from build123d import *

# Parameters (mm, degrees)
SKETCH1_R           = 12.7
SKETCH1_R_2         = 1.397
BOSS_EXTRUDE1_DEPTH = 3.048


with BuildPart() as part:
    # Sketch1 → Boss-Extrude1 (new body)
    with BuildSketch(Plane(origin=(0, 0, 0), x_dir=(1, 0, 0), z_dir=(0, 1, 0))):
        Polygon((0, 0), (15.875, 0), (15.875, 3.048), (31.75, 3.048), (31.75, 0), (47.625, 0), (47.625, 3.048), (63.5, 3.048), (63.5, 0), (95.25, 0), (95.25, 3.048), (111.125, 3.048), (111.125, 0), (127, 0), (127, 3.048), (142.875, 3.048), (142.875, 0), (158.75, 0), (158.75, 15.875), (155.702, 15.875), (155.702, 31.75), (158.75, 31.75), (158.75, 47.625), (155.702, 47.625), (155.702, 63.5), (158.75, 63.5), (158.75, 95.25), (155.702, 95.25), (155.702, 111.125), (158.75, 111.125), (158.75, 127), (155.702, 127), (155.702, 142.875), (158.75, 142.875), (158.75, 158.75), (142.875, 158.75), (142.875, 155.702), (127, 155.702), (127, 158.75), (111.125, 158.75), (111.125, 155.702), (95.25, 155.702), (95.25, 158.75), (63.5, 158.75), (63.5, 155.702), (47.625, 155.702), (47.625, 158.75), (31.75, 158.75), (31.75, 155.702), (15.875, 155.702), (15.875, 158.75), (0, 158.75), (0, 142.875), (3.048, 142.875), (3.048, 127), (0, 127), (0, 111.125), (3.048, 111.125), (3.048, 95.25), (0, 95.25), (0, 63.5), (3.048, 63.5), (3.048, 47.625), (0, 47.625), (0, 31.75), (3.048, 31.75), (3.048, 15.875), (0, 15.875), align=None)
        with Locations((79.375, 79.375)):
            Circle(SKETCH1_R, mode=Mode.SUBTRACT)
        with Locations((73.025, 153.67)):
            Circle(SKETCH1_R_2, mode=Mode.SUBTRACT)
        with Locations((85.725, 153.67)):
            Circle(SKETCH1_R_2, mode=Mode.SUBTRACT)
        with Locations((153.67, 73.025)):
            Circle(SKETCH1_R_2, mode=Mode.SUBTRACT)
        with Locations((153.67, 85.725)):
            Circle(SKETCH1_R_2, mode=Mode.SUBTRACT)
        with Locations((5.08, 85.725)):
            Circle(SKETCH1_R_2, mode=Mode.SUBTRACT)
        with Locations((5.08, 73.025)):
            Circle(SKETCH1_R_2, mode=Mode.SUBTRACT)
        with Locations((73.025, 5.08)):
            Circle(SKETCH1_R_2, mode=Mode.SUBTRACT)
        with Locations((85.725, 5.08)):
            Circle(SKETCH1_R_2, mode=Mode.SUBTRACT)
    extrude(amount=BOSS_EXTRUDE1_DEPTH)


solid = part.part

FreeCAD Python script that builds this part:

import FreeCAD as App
import Part
import Sketcher
from FreeCAD import Vector
Q = App.Units.Quantity

doc = App.newDocument("Part")
params = doc.addObject("Spreadsheet::Sheet", "Params")
for row, (alias, value) in enumerate([
    ("sketch1_diameter", "1 in"),
    ("sketch1_diameter2", "0.11 in"),
    ("sketch1_width", "1.25 in"),
    ("sketch1_width2", "0.12 in"),
    ("pad1_length", "0.12 in"),
], start=1):
    params.set(f"A{row}", alias)
    params.set(f"B{row}", "=" + value)
    params.setAlias(f"B{row}", alias)

body = doc.addObject("PartDesign::Body", "Body")

sketch1 = body.newObject("Sketcher::SketchObject", "Sketch")
sketch1.AttachmentSupport = (doc.getObject("XZ_Plane"), [""])
sketch1.MapMode = "FlatFace"
sketch1.addGeometry(Part.LineSegment(Vector(0, 0, 0), Vector(15.875, 0, 0)), False)
sketch1.addGeometry(Part.LineSegment(Vector(15.875, 0, 0), Vector(15.875, -3.048, 0)), False)
sketch1.addGeometry(Part.LineSegment(Vector(15.875, -3.048, 0), Vector(31.75, -3.048, 0)), False)
sketch1.addGeometry(Part.LineSegment(Vector(31.75, -3.048, 0), Vector(31.75, 0, 0)), False)
sketch1.addGeometry(Part.LineSegment(Vector(31.75, 0, 0), Vector(47.625, 0, 0)), False)
sketch1.addGeometry(Part.LineSegment(Vector(47.625, 0, 0), Vector(47.625, -3.048, 0)), False)
sketch1.addGeometry(Part.LineSegment(Vector(47.625, -3.048, 0), Vector(63.5, -3.048, 0)), False)
sketch1.addGeometry(Part.LineSegment(Vector(63.5, -3.048, 0), Vector(63.5, 0, 0)), False)
sketch1.addGeometry(Part.LineSegment(Vector(63.5, 0, 0), Vector(95.25, 0, 0)), False)
sketch1.addGeometry(Part.LineSegment(Vector(95.25, 0, 0), Vector(95.25, -3.048, 0)), False)
sketch1.addGeometry(Part.LineSegment(Vector(95.25, -3.048, 0), Vector(111.125, -3.048, 0)), False)
sketch1.addGeometry(Part.LineSegment(Vector(111.125, -3.048, 0), Vector(111.125, 0, 0)), False)
sketch1.addGeometry(Part.LineSegment(Vector(111.125, 0, 0), Vector(127, 0, 0)), False)
sketch1.addGeometry(Part.LineSegment(Vector(127, 0, 0), Vector(127, -3.048, 0)), False)
sketch1.addGeometry(Part.LineSegment(Vector(127, -3.048, 0), Vector(142.875, -3.048, 0)), False)
sketch1.addGeometry(Part.LineSegment(Vector(142.875, -3.048, 0), Vector(142.875, 0, 0)), False)
sketch1.addGeometry(Part.LineSegment(Vector(142.875, 0, 0), Vector(158.75, 0, 0)), False)
sketch1.addGeometry(Part.LineSegment(Vector(158.75, 0, 0), Vector(158.75, -15.875, 0)), False)
sketch1.addGeometry(Part.LineSegment(Vector(158.75, -15.875, 0), Vector(155.702, -15.875, 0)), False)
sketch1.addGeometry(Part.LineSegment(Vector(155.702, -15.875, 0), Vector(155.702, -31.75, 0)), False)
sketch1.addGeometry(Part.LineSegment(Vector(155.702, -31.75, 0), Vector(158.75, -31.75, 0)), False)
sketch1.addGeometry(Part.LineSegment(Vector(158.75, -31.75, 0), Vector(158.75, -47.625, 0)), False)
sketch1.addGeometry(Part.LineSegment(Vector(158.75, -47.625, 0), Vector(155.702, -47.625, 0)), False)
sketch1.addGeometry(Part.LineSegment(Vector(155.702, -47.625, 0), Vector(155.702, -63.5, 0)), False)
sketch1.addGeometry(Part.LineSegment(Vector(155.702, -63.5, 0), Vector(158.75, -63.5, 0)), False)
sketch1.addGeometry(Part.LineSegment(Vector(158.75, -63.5, 0), Vector(158.75, -95.25, 0)), False)
sketch1.addGeometry(Part.LineSegment(Vector(158.75, -95.25, 0), Vector(155.702, -95.25, 0)), False)
sketch1.addGeometry(Part.LineSegment(Vector(155.702, -95.25, 0), Vector(155.702, -111.125, 0)), False)
sketch1.addGeometry(Part.LineSegment(Vector(155.702, -111.125, 0), Vector(158.75, -111.125, 0)), False)
sketch1.addGeometry(Part.LineSegment(Vector(158.75, -111.125, 0), Vector(158.75, -127, 0)), False)
sketch1.addGeometry(Part.LineSegment(Vector(158.75, -127, 0), Vector(155.702, -127, 0)), False)
sketch1.addGeometry(Part.LineSegment(Vector(155.702, -127, 0), Vector(155.702, -142.875, 0)), False)
sketch1.addGeometry(Part.LineSegment(Vector(155.702, -142.875, 0), Vector(158.75, -142.875, 0)), False)
sketch1.addGeometry(Part.LineSegment(Vector(158.75, -142.875, 0), Vector(158.75, -158.75, 0)), False)
sketch1.addGeometry(Part.LineSegment(Vector(158.75, -158.75, 0), Vector(142.875, -158.75, 0)), False)
sketch1.addGeometry(Part.LineSegment(Vector(142.875, -158.75, 0), Vector(142.875, -155.702, 0)), False)
sketch1.addGeometry(Part.LineSegment(Vector(142.875, -155.702, 0), Vector(127, -155.702, 0)), False)
sketch1.addGeometry(Part.LineSegment(Vector(127, -155.702, 0), Vector(127, -158.75, 0)), False)
sketch1.addGeometry(Part.LineSegment(Vector(127, -158.75, 0), Vector(111.125, -158.75, 0)), False)
sketch1.addGeometry(Part.LineSegment(Vector(111.125, -158.75, 0), Vector(111.125, -155.702, 0)), False)
sketch1.addGeometry(Part.LineSegment(Vector(111.125, -155.702, 0), Vector(95.25, -155.702, 0)), False)
sketch1.addGeometry(Part.LineSegment(Vector(95.25, -155.702, 0), Vector(95.25, -158.75, 0)), False)
sketch1.addGeometry(Part.LineSegment(Vector(95.25, -158.75, 0), Vector(63.5, -158.75, 0)), False)
sketch1.addGeometry(Part.LineSegment(Vector(63.5, -158.75, 0), Vector(63.5, -155.702, 0)), False)
sketch1.addGeometry(Part.LineSegment(Vector(63.5, -155.702, 0), Vector(47.625, -155.702, 0)), False)
sketch1.addGeometry(Part.LineSegment(Vector(47.625, -155.702, 0), Vector(47.625, -158.75, 0)), False)
sketch1.addGeometry(Part.LineSegment(Vector(47.625, -158.75, 0), Vector(31.75, -158.75, 0)), False)
sketch1.addGeometry(Part.LineSegment(Vector(31.75, -158.75, 0), Vector(31.75, -155.702, 0)), False)
sketch1.addGeometry(Part.LineSegment(Vector(31.75, -155.702, 0), Vector(15.875, -155.702, 0)), False)
sketch1.addGeometry(Part.LineSegment(Vector(15.875, -155.702, 0), Vector(15.875, -158.75, 0)), False)
sketch1.addGeometry(Part.LineSegment(Vector(15.875, -158.75, 0), Vector(0, -158.75, 0)), False)
sketch1.addGeometry(Part.LineSegment(Vector(0, -158.75, 0), Vector(0, -142.875, 0)), False)
sketch1.addGeometry(Part.LineSegment(Vector(0, -142.875, 0), Vector(3.048, -142.875, 0)), False)
sketch1.addGeometry(Part.LineSegment(Vector(3.048, -142.875, 0), Vector(3.048, -127, 0)), False)
sketch1.addGeometry(Part.LineSegment(Vector(3.048, -127, 0), Vector(0, -127, 0)), False)
sketch1.addGeometry(Part.LineSegment(Vector(0, -127, 0), Vector(0, -111.125, 0)), False)
sketch1.addGeometry(Part.LineSegment(Vector(0, -111.125, 0), Vector(3.048, -111.125, 0)), False)
sketch1.addGeometry(Part.LineSegment(Vector(3.048, -111.125, 0), Vector(3.048, -95.25, 0)), False)
sketch1.addGeometry(Part.LineSegment(Vector(3.048, -95.25, 0), Vector(0, -95.25, 0)), False)
sketch1.addGeometry(Part.LineSegment(Vector(0, -95.25, 0), Vector(0, -63.5, 0)), False)
sketch1.addGeometry(Part.LineSegment(Vector(0, -63.5, 0), Vector(3.048, -63.5, 0)), False)
sketch1.addGeometry(Part.LineSegment(Vector(3.048, -63.5, 0), Vector(3.048, -47.625, 0)), False)
sketch1.addGeometry(Part.LineSegment(Vector(3.048, -47.625, 0), Vector(0, -47.625, 0)), False)
sketch1.addGeometry(Part.LineSegment(Vector(0, -47.625, 0), Vector(0, -31.75, 0)), False)
sketch1.addGeometry(Part.LineSegment(Vector(0, -31.75, 0), Vector(3.048, -31.75, 0)), False)
sketch1.addGeometry(Part.LineSegment(Vector(3.048, -31.75, 0), Vector(3.048, -15.875, 0)), False)
sketch1.addGeometry(Part.LineSegment(Vector(3.048, -15.875, 0), Vector(0, -15.875, 0)), False)
sketch1.addGeometry(Part.LineSegment(Vector(0, -15.875, 0), Vector(0, 0, 0)), False)
sketch1.addGeometry(Part.Circle(Vector(73.025, -5.08, 0), Vector(0, 0, 1), 1.397), False)
sketch1.addGeometry(Part.Circle(Vector(5.08, -73.025, 0), Vector(0, 0, 1), 1.397), False)
sketch1.addGeometry(Part.Circle(Vector(85.725, -5.08, 0), Vector(0, 0, 1), 1.397), False)
sketch1.addGeometry(Part.Circle(Vector(153.67, -73.025, 0), Vector(0, 0, 1), 1.397), False)
sketch1.addGeometry(Part.Circle(Vector(5.08, -85.725, 0), Vector(0, 0, 1), 1.397), False)
sketch1.addGeometry(Part.Circle(Vector(73.025, -153.67, 0), Vector(0, 0, 1), 1.397), False)
sketch1.addGeometry(Part.Circle(Vector(79.375, -79.375, 0), Vector(0, 0, 1), 12.7), False)
sketch1.addGeometry(Part.Circle(Vector(153.67, -85.725, 0), Vector(0, 0, 1), 1.397), False)
sketch1.addGeometry(Part.Circle(Vector(85.725, -153.67, 0), Vector(0, 0, 1), 1.397), False)
sketch1.addConstraint(Sketcher.Constraint("Coincident", 0, 2, 1, 1))
sketch1.addConstraint(Sketcher.Constraint("Coincident", 1, 2, 2, 1))
sketch1.addConstraint(Sketcher.Constraint("Coincident", 2, 2, 3, 1))
sketch1.addConstraint(Sketcher.Constraint("Coincident", 3, 2, 4, 1))
sketch1.addConstraint(Sketcher.Constraint("Coincident", 4, 2, 5, 1))
sketch1.addConstraint(Sketcher.Constraint("Coincident", 5, 2, 6, 1))
sketch1.addConstraint(Sketcher.Constraint("Coincident", 6, 2, 7, 1))
sketch1.addConstraint(Sketcher.Constraint("Coincident", 7, 2, 8, 1))
sketch1.addConstraint(Sketcher.Constraint("Coincident", 8, 2, 9, 1))
sketch1.addConstraint(Sketcher.Constraint("Coincident", 9, 2, 10, 1))
sketch1.addConstraint(Sketcher.Constraint("Coincident", 10, 2, 11, 1))
sketch1.addConstraint(Sketcher.Constraint("Coincident", 11, 2, 12, 1))
sketch1.addConstraint(Sketcher.Constraint("Coincident", 12, 2, 13, 1))
sketch1.addConstraint(Sketcher.Constraint("Coincident", 13, 2, 14, 1))
sketch1.addConstraint(Sketcher.Constraint("Coincident", 14, 2, 15, 1))
sketch1.addConstraint(Sketcher.Constraint("Coincident", 15, 2, 16, 1))
sketch1.addConstraint(Sketcher.Constraint("Coincident", 16, 2, 17, 1))
sketch1.addConstraint(Sketcher.Constraint("Coincident", 17, 2, 18, 1))
sketch1.addConstraint(Sketcher.Constraint("Coincident", 18, 2, 19, 1))
sketch1.addConstraint(Sketcher.Constraint("Coincident", 19, 2, 20, 1))
sketch1.addConstraint(Sketcher.Constraint("Coincident", 20, 2, 21, 1))
sketch1.addConstraint(Sketcher.Constraint("Coincident", 21, 2, 22, 1))
sketch1.addConstraint(Sketcher.Constraint("Coincident", 22, 2, 23, 1))
sketch1.addConstraint(Sketcher.Constraint("Coincident", 23, 2, 24, 1))
sketch1.addConstraint(Sketcher.Constraint("Coincident", 24, 2, 25, 1))
sketch1.addConstraint(Sketcher.Constraint("Coincident", 25, 2, 26, 1))
sketch1.addConstraint(Sketcher.Constraint("Coincident", 26, 2, 27, 1))
sketch1.addConstraint(Sketcher.Constraint("Coincident", 27, 2, 28, 1))
sketch1.addConstraint(Sketcher.Constraint("Coincident", 28, 2, 29, 1))
sketch1.addConstraint(Sketcher.Constraint("Coincident", 29, 2, 30, 1))
sketch1.addConstraint(Sketcher.Constraint("Coincident", 30, 2, 31, 1))
sketch1.addConstraint(Sketcher.Constraint("Coincident", 31, 2, 32, 1))
sketch1.addConstraint(Sketcher.Constraint("Coincident", 32, 2, 33, 1))
sketch1.addConstraint(Sketcher.Constraint("Coincident", 33, 2, 34, 1))
sketch1.addConstraint(Sketcher.Constraint("Coincident", 34, 2, 35, 1))
sketch1.addConstraint(Sketcher.Constraint("Coincident", 35, 2, 36, 1))
sketch1.addConstraint(Sketcher.Constraint("Coincident", 36, 2, 37, 1))
sketch1.addConstraint(Sketcher.Constraint("Coincident", 37, 2, 38, 1))
sketch1.addConstraint(Sketcher.Constraint("Coincident", 38, 2, 39, 1))
sketch1.addConstraint(Sketcher.Constraint("Coincident", 39, 2, 40, 1))
sketch1.addConstraint(Sketcher.Constraint("Coincident", 40, 2, 41, 1))
sketch1.addConstraint(Sketcher.Constraint("Coincident", 41, 2, 42, 1))
sketch1.addConstraint(Sketcher.Constraint("Coincident", 42, 2, 43, 1))
sketch1.addConstraint(Sketcher.Constraint("Coincident", 43, 2, 44, 1))
sketch1.addConstraint(Sketcher.Constraint("Coincident", 44, 2, 45, 1))
sketch1.addConstraint(Sketcher.Constraint("Coincident", 45, 2, 46, 1))
sketch1.addConstraint(Sketcher.Constraint("Coincident", 46, 2, 47, 1))
sketch1.addConstraint(Sketcher.Constraint("Coincident", 47, 2, 48, 1))
sketch1.addConstraint(Sketcher.Constraint("Coincident", 48, 2, 49, 1))
sketch1.addConstraint(Sketcher.Constraint("Coincident", 49, 2, 50, 1))
sketch1.addConstraint(Sketcher.Constraint("Coincident", 50, 2, 51, 1))
sketch1.addConstraint(Sketcher.Constraint("Coincident", 51, 2, 52, 1))
sketch1.addConstraint(Sketcher.Constraint("Coincident", 52, 2, 53, 1))
sketch1.addConstraint(Sketcher.Constraint("Coincident", 53, 2, 54, 1))
sketch1.addConstraint(Sketcher.Constraint("Coincident", 54, 2, 55, 1))
sketch1.addConstraint(Sketcher.Constraint("Coincident", 55, 2, 56, 1))
sketch1.addConstraint(Sketcher.Constraint("Coincident", 56, 2, 57, 1))
sketch1.addConstraint(Sketcher.Constraint("Coincident", 57, 2, 58, 1))
sketch1.addConstraint(Sketcher.Constraint("Coincident", 58, 2, 59, 1))
sketch1.addConstraint(Sketcher.Constraint("Coincident", 59, 2, 60, 1))
sketch1.addConstraint(Sketcher.Constraint("Coincident", 60, 2, 61, 1))
sketch1.addConstraint(Sketcher.Constraint("Coincident", 61, 2, 62, 1))
sketch1.addConstraint(Sketcher.Constraint("Coincident", 62, 2, 63, 1))
sketch1.addConstraint(Sketcher.Constraint("Coincident", 63, 2, 64, 1))
sketch1.addConstraint(Sketcher.Constraint("Coincident", 64, 2, 65, 1))
sketch1.addConstraint(Sketcher.Constraint("Coincident", 65, 2, 66, 1))
sketch1.addConstraint(Sketcher.Constraint("Coincident", 66, 2, 67, 1))
sketch1.addConstraint(Sketcher.Constraint("Coincident", 67, 2, 0, 1))
sketch1.addConstraint(Sketcher.Constraint("Horizontal", 0))
sketch1.addConstraint(Sketcher.Constraint("Vertical", 1))
sketch1.addConstraint(Sketcher.Constraint("Horizontal", 2))
sketch1.addConstraint(Sketcher.Constraint("Vertical", 3))
sketch1.addConstraint(Sketcher.Constraint("Horizontal", 4))
sketch1.addConstraint(Sketcher.Constraint("Vertical", 5))
sketch1.addConstraint(Sketcher.Constraint("Horizontal", 6))
sketch1.addConstraint(Sketcher.Constraint("Vertical", 7))
sketch1.addConstraint(Sketcher.Constraint("Horizontal", 8))
sketch1.addConstraint(Sketcher.Constraint("Vertical", 9))
sketch1.addConstraint(Sketcher.Constraint("Horizontal", 10))
sketch1.addConstraint(Sketcher.Constraint("Vertical", 11))
sketch1.addConstraint(Sketcher.Constraint("Horizontal", 12))
sketch1.addConstraint(Sketcher.Constraint("Vertical", 13))
sketch1.addConstraint(Sketcher.Constraint("Horizontal", 14))
sketch1.addConstraint(Sketcher.Constraint("Vertical", 15))
sketch1.addConstraint(Sketcher.Constraint("Horizontal", 16))
sketch1.addConstraint(Sketcher.Constraint("Vertical", 17))
sketch1.addConstraint(Sketcher.Constraint("Horizontal", 18))
sketch1.addConstraint(Sketcher.Constraint("Vertical", 19))
sketch1.addConstraint(Sketcher.Constraint("Horizontal", 20))
sketch1.addConstraint(Sketcher.Constraint("Vertical", 21))
sketch1.addConstraint(Sketcher.Constraint("Horizontal", 22))
sketch1.addConstraint(Sketcher.Constraint("Vertical", 23))
sketch1.addConstraint(Sketcher.Constraint("Horizontal", 24))
sketch1.addConstraint(Sketcher.Constraint("Vertical", 25))
sketch1.addConstraint(Sketcher.Constraint("Horizontal", 26))
sketch1.addConstraint(Sketcher.Constraint("Vertical", 27))
sketch1.addConstraint(Sketcher.Constraint("Horizontal", 28))
sketch1.addConstraint(Sketcher.Constraint("Vertical", 29))
sketch1.addConstraint(Sketcher.Constraint("Horizontal", 30))
sketch1.addConstraint(Sketcher.Constraint("Vertical", 31))
sketch1.addConstraint(Sketcher.Constraint("Horizontal", 32))
sketch1.addConstraint(Sketcher.Constraint("Vertical", 33))
sketch1.addConstraint(Sketcher.Constraint("Horizontal", 34))
sketch1.addConstraint(Sketcher.Constraint("Vertical", 35))
sketch1.addConstraint(Sketcher.Constraint("Horizontal", 36))
sketch1.addConstraint(Sketcher.Constraint("Vertical", 37))
sketch1.addConstraint(Sketcher.Constraint("Horizontal", 38))
sketch1.addConstraint(Sketcher.Constraint("Vertical", 39))
sketch1.addConstraint(Sketcher.Constraint("Horizontal", 40))
sketch1.addConstraint(Sketcher.Constraint("Vertical", 41))
sketch1.addConstraint(Sketcher.Constraint("Horizontal", 42))
sketch1.addConstraint(Sketcher.Constraint("Vertical", 43))
sketch1.addConstraint(Sketcher.Constraint("Horizontal", 44))
sketch1.addConstraint(Sketcher.Constraint("Vertical", 45))
sketch1.addConstraint(Sketcher.Constraint("Horizontal", 46))
sketch1.addConstraint(Sketcher.Constraint("Vertical", 47))
sketch1.addConstraint(Sketcher.Constraint("Horizontal", 48))
sketch1.addConstraint(Sketcher.Constraint("Vertical", 49))
sketch1.addConstraint(Sketcher.Constraint("Horizontal", 50))
sketch1.addConstraint(Sketcher.Constraint("Vertical", 51))
sketch1.addConstraint(Sketcher.Constraint("Horizontal", 52))
sketch1.addConstraint(Sketcher.Constraint("Vertical", 53))
sketch1.addConstraint(Sketcher.Constraint("Horizontal", 54))
sketch1.addConstraint(Sketcher.Constraint("Vertical", 55))
sketch1.addConstraint(Sketcher.Constraint("Horizontal", 56))
sketch1.addConstraint(Sketcher.Constraint("Vertical", 57))
sketch1.addConstraint(Sketcher.Constraint("Horizontal", 58))
sketch1.addConstraint(Sketcher.Constraint("Vertical", 59))
sketch1.addConstraint(Sketcher.Constraint("Horizontal", 60))
sketch1.addConstraint(Sketcher.Constraint("Vertical", 61))
sketch1.addConstraint(Sketcher.Constraint("Horizontal", 62))
sketch1.addConstraint(Sketcher.Constraint("Vertical", 63))
sketch1.addConstraint(Sketcher.Constraint("Horizontal", 64))
sketch1.addConstraint(Sketcher.Constraint("Vertical", 65))
sketch1.addConstraint(Sketcher.Constraint("Horizontal", 66))
sketch1.addConstraint(Sketcher.Constraint("Vertical", 67))
sketch1.addConstraint(Sketcher.Constraint("Coincident", 67, 2, -1, 1))
sketch1.addConstraint(Sketcher.Constraint("Equal", 68, 69))
sketch1.addConstraint(Sketcher.Constraint("Equal", 69, 70))
sketch1.addConstraint(Sketcher.Constraint("Equal", 70, 71))
sketch1.addConstraint(Sketcher.Constraint("Equal", 71, 72))
sketch1.addConstraint(Sketcher.Constraint("Equal", 72, 73))
sketch1.addConstraint(Sketcher.Constraint("Equal", 73, 75))
sketch1.addConstraint(Sketcher.Constraint("Equal", 75, 76))
sketch1.addConstraint(Sketcher.Constraint("PointOnObject", 3, 2, -1))
sketch1.addConstraint(Sketcher.Constraint("PointOnObject", 7, 2, -1))
sketch1.addConstraint(Sketcher.Constraint("PointOnObject", 11, 2, -1))
sketch1.addConstraint(Sketcher.Constraint("PointOnObject", 15, 2, -1))
sketch1.addConstraint(Sketcher.Constraint("PointOnObject", 50, 2, -2))
sketch1.addConstraint(Sketcher.Constraint("PointOnObject", 54, 2, -2))
sketch1.addConstraint(Sketcher.Constraint("PointOnObject", 58, 2, -2))
sketch1.addConstraint(Sketcher.Constraint("PointOnObject", 62, 2, -2))
sketch1.addConstraint(Sketcher.Constraint("Horizontal", 68, 3, 70, 3))
sketch1.addConstraint(Sketcher.Constraint("Horizontal", 69, 3, 71, 3))
sketch1.addConstraint(Sketcher.Constraint("Horizontal", 72, 3, 75, 3))
sketch1.addConstraint(Sketcher.Constraint("Horizontal", 73, 3, 76, 3))
sketch1.addConstraint(Sketcher.Constraint("Horizontal", 2, 2, 5, 2))
sketch1.addConstraint(Sketcher.Constraint("Horizontal", 6, 2, 9, 2))
sketch1.addConstraint(Sketcher.Constraint("Horizontal", 10, 2, 13, 2))
sketch1.addConstraint(Sketcher.Constraint("Horizontal", 34, 2, 37, 2))
sketch1.addConstraint(Sketcher.Constraint("Horizontal", 36, 2, 39, 2))
sketch1.addConstraint(Sketcher.Constraint("Horizontal", 38, 2, 41, 2))
sketch1.addConstraint(Sketcher.Constraint("Horizontal", 40, 2, 43, 2))
sketch1.addConstraint(Sketcher.Constraint("Horizontal", 42, 2, 45, 2))
sketch1.addConstraint(Sketcher.Constraint("Horizontal", 44, 2, 47, 2))
sketch1.addConstraint(Sketcher.Constraint("Horizontal", 46, 2, 49, 2))
sketch1.addConstraint(Sketcher.Constraint("Horizontal", 32, 2, 51, 2))
sketch1.addConstraint(Sketcher.Constraint("Horizontal", 30, 2, 53, 2))
sketch1.addConstraint(Sketcher.Constraint("Horizontal", 28, 2, 55, 2))
sketch1.addConstraint(Sketcher.Constraint("Horizontal", 26, 2, 57, 2))
sketch1.addConstraint(Sketcher.Constraint("Horizontal", 24, 2, 59, 2))
sketch1.addConstraint(Sketcher.Constraint("Horizontal", 22, 2, 61, 2))
sketch1.addConstraint(Sketcher.Constraint("Horizontal", 20, 2, 63, 2))
sketch1.addConstraint(Sketcher.Constraint("Horizontal", 18, 2, 65, 2))
sketch1.addConstraint(Sketcher.Constraint("Vertical", 69, 3, 72, 3))
sketch1.addConstraint(Sketcher.Constraint("Vertical", 68, 3, 73, 3))
sketch1.addConstraint(Sketcher.Constraint("Vertical", 71, 3, 75, 3))
sketch1.addConstraint(Sketcher.Constraint("Vertical", 70, 3, 76, 3))
sketch1.addConstraint(Sketcher.Constraint("Vertical", 17, 2, 20, 2))
sketch1.addConstraint(Sketcher.Constraint("Vertical", 19, 2, 22, 2))
sketch1.addConstraint(Sketcher.Constraint("Vertical", 21, 2, 24, 2))
sketch1.addConstraint(Sketcher.Constraint("Vertical", 23, 2, 26, 2))
sketch1.addConstraint(Sketcher.Constraint("Vertical", 25, 2, 28, 2))
sketch1.addConstraint(Sketcher.Constraint("Vertical", 27, 2, 30, 2))
sketch1.addConstraint(Sketcher.Constraint("Vertical", 29, 2, 32, 2))
sketch1.addConstraint(Sketcher.Constraint("Vertical", 15, 2, 34, 2))
sketch1.addConstraint(Sketcher.Constraint("Vertical", 13, 2, 36, 2))
sketch1.addConstraint(Sketcher.Constraint("Vertical", 11, 2, 38, 2))
sketch1.addConstraint(Sketcher.Constraint("Vertical", 9, 2, 40, 2))
sketch1.addConstraint(Sketcher.Constraint("Vertical", 7, 2, 42, 2))
sketch1.addConstraint(Sketcher.Constraint("Vertical", 5, 2, 44, 2))
sketch1.addConstraint(Sketcher.Constraint("Vertical", 3, 2, 46, 2))
sketch1.addConstraint(Sketcher.Constraint("Vertical", 1, 2, 48, 2))
sketch1.addConstraint(Sketcher.Constraint("Vertical", 53, 2, 56, 2))
sketch1.addConstraint(Sketcher.Constraint("Vertical", 57, 2, 60, 2))
sketch1.addConstraint(Sketcher.Constraint("Vertical", 61, 2, 64, 2))
sketch1.addConstraint(Sketcher.Constraint("Equal", 0, 2))
sketch1.addConstraint(Sketcher.Constraint("Equal", 2, 4))
sketch1.addConstraint(Sketcher.Constraint("Equal", 4, 6))
sketch1.addConstraint(Sketcher.Constraint("Equal", 6, 10))
sketch1.addConstraint(Sketcher.Constraint("Equal", 10, 12))
sketch1.addConstraint(Sketcher.Constraint("Equal", 12, 14))
sketch1.addConstraint(Sketcher.Constraint("Equal", 14, 16))
sketch1.addConstraint(Sketcher.Constraint("Equal", 32, 52))
sketch1.addConstraint(Sketcher.Constraint("Equal", 66, 1))
sketch1.addConstraint(Sketcher.Constraint("Equal", 50, 17))
sketch1.addConstraint(Sketcher.Constraint("Equal", 17, 19))
sketch1.addConstraint(Sketcher.Constraint("Equal", 19, 21))
sketch1.addConstraint(Sketcher.Constraint("Equal", 21, 23))
sketch1.addConstraint(Sketcher.Constraint("Equal", 42, 25))
sketch1.addConstraint(Sketcher.Constraint("Equal", 23, 27))
sketch1.addConstraint(Sketcher.Constraint("Equal", 27, 29))
sketch1.addConstraint(Sketcher.Constraint("Equal", 29, 31))
sketch1.addConstraint(Sketcher.Constraint("Equal", 31, 33))
sketch1.addConstraint(Sketcher.Constraint("Equal", 15, 35))
sketch1.addConstraint(Sketcher.Constraint("Diameter", 74, Q("1 in")))
sketch1.addConstraint(Sketcher.Constraint("Diameter", 68, Q("0.11 in")))
sketch1.addConstraint(Sketcher.Constraint("DistanceX", -1, 1, 12, 2, Q("5 in")))
sketch1.addConstraint(Sketcher.Constraint("DistanceX", 8, 1, 8, 2, Q("1.25 in")))
sketch1.addConstraint(Sketcher.Constraint("DistanceX", 18, 2, 18, 1, Q("0.12 in")))
sketch1.addConstraint(Sketcher.Constraint("DistanceY", 68, 3, -1, 1, Q("0.2 in")))
sketch1.addConstraint(Sketcher.Constraint("DistanceX", -1, 1, 69, 3, Q("0.2 in")))
sketch1.addConstraint(Sketcher.Constraint("DistanceX", -1, 1, 71, 3, Q("6.05 in")))
sketch1.addConstraint(Sketcher.Constraint("DistanceY", 73, 3, -1, 1, Q("6.05 in")))
sketch1.addConstraint(Sketcher.Constraint("DistanceX", -1, 1, 68, 3, Q("2.875 in")))
sketch1.addConstraint(Sketcher.Constraint("DistanceY", 69, 3, -1, 1, Q("2.875 in")))
sketch1.addConstraint(Sketcher.Constraint("DistanceX", -1, 1, 70, 3, Q("3.375 in")))
sketch1.addConstraint(Sketcher.Constraint("DistanceY", 72, 3, -1, 1, Q("3.375 in")))
sketch1.addConstraint(Sketcher.Constraint("DistanceX", -1, 1, 74, 3, Q("3.125 in")))
sketch1.addConstraint(Sketcher.Constraint("DistanceY", 74, 3, -1, 1, Q("3.125 in")))
sketch1.setExpression("Constraints[215]", "Params.sketch1_diameter")
sketch1.setExpression("Constraints[216]", "Params.sketch1_diameter2")
sketch1.setExpression("Constraints[218]", "Params.sketch1_width")
sketch1.setExpression("Constraints[219]", "Params.sketch1_width2")
pad1 = body.newObject("PartDesign::Pad", "Pad")
pad1.Profile = sketch1
pad1.setExpression("Length", "Params.pad1_length")
pad1.Reversed = True

doc.recompute()
